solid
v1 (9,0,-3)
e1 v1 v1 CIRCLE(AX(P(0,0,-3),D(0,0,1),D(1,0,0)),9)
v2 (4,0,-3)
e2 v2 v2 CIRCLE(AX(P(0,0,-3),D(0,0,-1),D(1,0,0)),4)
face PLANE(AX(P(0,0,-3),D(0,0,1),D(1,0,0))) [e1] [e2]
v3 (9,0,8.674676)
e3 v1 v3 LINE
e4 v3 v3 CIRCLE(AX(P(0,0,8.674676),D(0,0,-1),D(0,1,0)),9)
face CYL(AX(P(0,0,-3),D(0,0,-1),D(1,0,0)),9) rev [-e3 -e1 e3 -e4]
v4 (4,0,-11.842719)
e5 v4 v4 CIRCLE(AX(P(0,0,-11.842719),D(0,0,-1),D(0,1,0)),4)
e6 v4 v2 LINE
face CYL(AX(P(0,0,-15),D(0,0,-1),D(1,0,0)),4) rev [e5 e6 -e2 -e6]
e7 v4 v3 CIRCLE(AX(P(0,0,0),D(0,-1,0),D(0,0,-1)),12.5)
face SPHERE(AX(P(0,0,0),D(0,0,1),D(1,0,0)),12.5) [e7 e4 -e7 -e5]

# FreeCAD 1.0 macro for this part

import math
import FreeCAD as App
import Part
import Sketcher

V = App.Vector

doc = App.newDocument("Part")
body = doc.addObject("PartDesign::Body", "Body")

# Sketch on XY plane
sketch1 = body.newObject("Sketcher::SketchObject", "Sketch")
sketch1.AttachmentSupport = (doc.getObject("XY_Plane"), [""])
sketch1.MapMode = "FlatFace"
sketch1.AttachmentOffset = App.Placement(V(0, 0, -3), App.Rotation())
sketch1.addGeometry(Part.Circle(V(0, 0, 0), V(0, 0, 1), 9), False)
sketch1.addConstraint(Sketcher.Constraint("Coincident", 0, 3, -1, 1))
sketch1.addConstraint(Sketcher.Constraint("Diameter", 0, 18.0))
pad1 = body.newObject("PartDesign::Pad", "Pad")
pad1.Profile = sketch1
pad1.Length = 15
body2 = doc.addObject("PartDesign::Body", "Body001")

# Sketch on XY plane
sketch2 = body2.newObject("Sketcher::SketchObject", "Sketch001")
sketch2.AttachmentSupport = (doc.getObject("XY_Plane001"), [""])
sketch2.MapMode = "FlatFace"
sketch2.AttachmentOffset = App.Placement(V(0, 0, -15), App.Rotation())
sketch2.addGeometry(Part.Circle(V(0, 0, 0), V(0, 0, 1), 4), False)
sketch2.addConstraint(Sketcher.Constraint("Coincident", 0, 3, -1, 1))
sketch2.addConstraint(Sketcher.Constraint("Diameter", 0, 8.0))
pad2 = body2.newObject("PartDesign::Pad", "Pad001")
pad2.Profile = sketch2
pad2.Length = 30
doc.recompute()

boolean = body2.newObject("PartDesign::Boolean", "Boolean")
boolean.Type = "Fuse"
boolean.addObjects([body])
body3 = doc.addObject("PartDesign::Body", "Body002")

# Sketch on XZ plane
sketch3 = body3.newObject("Sketcher::SketchObject", "Sketch002")
sketch3.AttachmentSupport = (doc.getObject("XZ_Plane002"), [""])
sketch3.MapMode = "FlatFace"
sketch3.addGeometry(Part.ArcOfCircle(Part.Circle(V(0, 0, 0), V(0, 0, 1), 12), math.radians(-90), math.radians(90)), False)
sketch3.addGeometry(Part.LineSegment(V(0, 12, 0), V(0, -12, 0)), False)
sketch3.addConstraint(Sketcher.Constraint("Coincident", 0, 1, 1, 2))
sketch3.addConstraint(Sketcher.Constraint("Coincident", 1, 1, 0, 2))
sketch3.addConstraint(Sketcher.Constraint("Vertical", 1))
sketch3.addConstraint(Sketcher.Constraint("Coincident", 0, 3, -1, 1))
sketch3.addConstraint(Sketcher.Constraint("PointOnObject", 0, 1, -2))
sketch3.addConstraint(Sketcher.Constraint("Radius", 0, 12.5))
revolution = body3.newObject("PartDesign::Revolution", "Revolution")
revolution.Profile = sketch3
revolution.ReferenceAxis = (sketch3, ["V_Axis"])
revolution.Angle = 360
doc.recompute()

boolean2 = body3.newObject("PartDesign::Boolean", "Boolean001")
boolean2.Type = "Cut"
boolean2.addObjects([body2])

doc.recompute()
